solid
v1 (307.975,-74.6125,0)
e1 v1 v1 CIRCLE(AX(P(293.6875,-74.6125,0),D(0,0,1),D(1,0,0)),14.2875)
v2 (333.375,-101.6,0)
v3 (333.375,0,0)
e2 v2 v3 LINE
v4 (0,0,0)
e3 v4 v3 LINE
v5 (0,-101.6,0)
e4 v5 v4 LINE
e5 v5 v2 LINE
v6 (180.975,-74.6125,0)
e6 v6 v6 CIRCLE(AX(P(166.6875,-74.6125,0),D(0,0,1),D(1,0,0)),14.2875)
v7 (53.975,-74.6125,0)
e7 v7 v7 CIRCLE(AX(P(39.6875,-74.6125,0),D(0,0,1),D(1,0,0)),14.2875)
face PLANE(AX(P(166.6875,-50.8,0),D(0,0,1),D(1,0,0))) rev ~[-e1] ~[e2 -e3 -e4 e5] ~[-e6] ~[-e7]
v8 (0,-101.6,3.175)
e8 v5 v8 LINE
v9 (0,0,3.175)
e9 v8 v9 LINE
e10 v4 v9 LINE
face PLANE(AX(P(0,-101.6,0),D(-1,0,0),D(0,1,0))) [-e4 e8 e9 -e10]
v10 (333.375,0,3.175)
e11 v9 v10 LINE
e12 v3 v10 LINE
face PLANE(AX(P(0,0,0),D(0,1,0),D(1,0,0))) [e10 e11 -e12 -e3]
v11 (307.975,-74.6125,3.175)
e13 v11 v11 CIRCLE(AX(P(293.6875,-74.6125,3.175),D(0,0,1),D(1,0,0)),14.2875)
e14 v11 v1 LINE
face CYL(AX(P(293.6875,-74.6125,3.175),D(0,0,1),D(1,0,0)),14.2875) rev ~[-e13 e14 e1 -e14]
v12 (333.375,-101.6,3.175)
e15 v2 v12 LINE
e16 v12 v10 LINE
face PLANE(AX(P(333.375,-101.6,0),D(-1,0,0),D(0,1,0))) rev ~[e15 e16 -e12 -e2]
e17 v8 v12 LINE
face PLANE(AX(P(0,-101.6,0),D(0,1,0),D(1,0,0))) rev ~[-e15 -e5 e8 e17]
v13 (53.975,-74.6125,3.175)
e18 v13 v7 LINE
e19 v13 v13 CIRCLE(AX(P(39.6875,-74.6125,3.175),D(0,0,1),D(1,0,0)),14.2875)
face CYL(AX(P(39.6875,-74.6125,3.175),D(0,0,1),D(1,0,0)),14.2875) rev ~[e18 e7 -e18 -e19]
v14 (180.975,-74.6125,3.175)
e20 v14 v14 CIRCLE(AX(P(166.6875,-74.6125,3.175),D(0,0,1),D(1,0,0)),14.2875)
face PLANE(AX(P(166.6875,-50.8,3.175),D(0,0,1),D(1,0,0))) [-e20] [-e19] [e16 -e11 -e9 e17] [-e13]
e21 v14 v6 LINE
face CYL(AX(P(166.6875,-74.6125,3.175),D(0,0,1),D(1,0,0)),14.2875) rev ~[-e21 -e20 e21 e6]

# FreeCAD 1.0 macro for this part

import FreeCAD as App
import Part
import Sketcher
Q = App.Units.Quantity


def add_polygon(sketch, points):
    """Adds a closed chain of lines whose ends are joined by coincident constraints."""
    first, n = sketch.GeometryCount, len(points)
    for a, b in zip(points, points[1:] + points[:1]):
        sketch.addGeometry(Part.LineSegment(App.Vector(*a, 0), App.Vector(*b, 0)), False)
    for i in range(n):
        sketch.addConstraint(Sketcher.Constraint("Coincident", first + i, 2, first + (i + 1) % n, 1))

doc = App.newDocument("Part")
params = doc.addObject("Spreadsheet::Sheet", "Params")
for row, (alias, value) in enumerate([
    ("sketch1_height", "4 in"),
    ("sketch1_width", "13.125 in"),
    ("pad1_length", "0.125 in"),
    ("sketch2_diameter", "1.125 in"),
    ("pocket1_length", "1 in"),
], start=1):
    params.set(f"A{row}", alias)
    params.set(f"B{row}", "=" + value)
    params.setAlias(f"B{row}", alias)

body = doc.addObject("PartDesign::Body", "Body")

# Sketch on XY plane
sketch1 = doc.addObject("Sketcher::SketchObject", "Sketch")
body.addObject(sketch1)
sketch1.AttachmentSupport = (doc.XY_Plane, [""])
sketch1.MapMode = "FlatFace"
add_polygon(sketch1, [(0, 0), (0, -101.6), (333.375, -101.6), (333.375, 0)])  # lines 0-3
sketch1.addConstraint([
    Sketcher.Constraint("Vertical", 0),
    Sketcher.Constraint("Horizontal", 1),
    Sketcher.Constraint("Vertical", 2),
    Sketcher.Constraint("Horizontal", 3),
    Sketcher.Constraint("Coincident", 3, 2, -1, 1),
    Sketcher.Constraint("DistanceY", 0, 2, 0, 1, Q("4 in")),
    Sketcher.Constraint("DistanceX", 1, 1, 1, 2, Q("13.125 in")),
])
sketch1.setExpression("Constraints[9]", "Params.sketch1_height")
sketch1.setExpression("Constraints[10]", "Params.sketch1_width")
pad1 = doc.addObject("PartDesign::Pad", "Pad")
body.addObject(pad1)
pad1.Profile = sketch1
pad1.setExpression("Length", "Params.pad1_length")

# Sketch on XY plane
sketch2 = doc.addObject("Sketcher::SketchObject", "Sketch001")
body.addObject(sketch2)
sketch2.AttachmentSupport = (doc.XY_Plane, [""])
sketch2.MapMode = "FlatFace"
sketch2.AttachmentOffset = App.Placement(App.Vector(0, 0, 0.125 * 25.4), App.Rotation())
sketch2.addGeometry([
    Part.Circle(App.Vector(39.6875, -74.6125, 0), App.Vector(0, 0, 1), 14.2875),
    Part.Circle(App.Vector(166.6875, -74.6125, 0), App.Vector(0, 0, 1), 14.2875),
    Part.Circle(App.Vector(293.6875, -74.6125, 0), App.Vector(0, 0, 1), 14.2875),
], False)
sketch2.addConstraint([
    Sketcher.Constraint("Equal", 0, 1),
    Sketcher.Constraint("Equal", 1, 2),
    Sketcher.Constraint("Horizontal", 0, 3, 1, 3),
    Sketcher.Constraint("Horizontal", 1, 3, 2, 3),
    Sketcher.Constraint("Diameter", 0, Q("1.125 in")),
    Sketcher.Constraint("DistanceX", 0, 3, 1, 3, Q("5 in")),
    Sketcher.Constraint("DistanceX", 1, 3, 2, 3, Q("5 in")),
    Sketcher.Constraint("DistanceX", -1, 1, 0, 3, Q("1.5625 in")),
    Sketcher.Constraint("DistanceY", 0, 3, -1, 1, Q("2.9375 in")),
])
sketch2.setExpression("Constraints[4]", "Params.sketch2_diameter")
pocket1 = doc.addObject("PartDesign::Pocket", "Pocket")
body.addObject(pocket1)
pocket1.Profile = sketch2
pocket1.setExpression("Length", "Params.pocket1_length")

doc.recompute()
